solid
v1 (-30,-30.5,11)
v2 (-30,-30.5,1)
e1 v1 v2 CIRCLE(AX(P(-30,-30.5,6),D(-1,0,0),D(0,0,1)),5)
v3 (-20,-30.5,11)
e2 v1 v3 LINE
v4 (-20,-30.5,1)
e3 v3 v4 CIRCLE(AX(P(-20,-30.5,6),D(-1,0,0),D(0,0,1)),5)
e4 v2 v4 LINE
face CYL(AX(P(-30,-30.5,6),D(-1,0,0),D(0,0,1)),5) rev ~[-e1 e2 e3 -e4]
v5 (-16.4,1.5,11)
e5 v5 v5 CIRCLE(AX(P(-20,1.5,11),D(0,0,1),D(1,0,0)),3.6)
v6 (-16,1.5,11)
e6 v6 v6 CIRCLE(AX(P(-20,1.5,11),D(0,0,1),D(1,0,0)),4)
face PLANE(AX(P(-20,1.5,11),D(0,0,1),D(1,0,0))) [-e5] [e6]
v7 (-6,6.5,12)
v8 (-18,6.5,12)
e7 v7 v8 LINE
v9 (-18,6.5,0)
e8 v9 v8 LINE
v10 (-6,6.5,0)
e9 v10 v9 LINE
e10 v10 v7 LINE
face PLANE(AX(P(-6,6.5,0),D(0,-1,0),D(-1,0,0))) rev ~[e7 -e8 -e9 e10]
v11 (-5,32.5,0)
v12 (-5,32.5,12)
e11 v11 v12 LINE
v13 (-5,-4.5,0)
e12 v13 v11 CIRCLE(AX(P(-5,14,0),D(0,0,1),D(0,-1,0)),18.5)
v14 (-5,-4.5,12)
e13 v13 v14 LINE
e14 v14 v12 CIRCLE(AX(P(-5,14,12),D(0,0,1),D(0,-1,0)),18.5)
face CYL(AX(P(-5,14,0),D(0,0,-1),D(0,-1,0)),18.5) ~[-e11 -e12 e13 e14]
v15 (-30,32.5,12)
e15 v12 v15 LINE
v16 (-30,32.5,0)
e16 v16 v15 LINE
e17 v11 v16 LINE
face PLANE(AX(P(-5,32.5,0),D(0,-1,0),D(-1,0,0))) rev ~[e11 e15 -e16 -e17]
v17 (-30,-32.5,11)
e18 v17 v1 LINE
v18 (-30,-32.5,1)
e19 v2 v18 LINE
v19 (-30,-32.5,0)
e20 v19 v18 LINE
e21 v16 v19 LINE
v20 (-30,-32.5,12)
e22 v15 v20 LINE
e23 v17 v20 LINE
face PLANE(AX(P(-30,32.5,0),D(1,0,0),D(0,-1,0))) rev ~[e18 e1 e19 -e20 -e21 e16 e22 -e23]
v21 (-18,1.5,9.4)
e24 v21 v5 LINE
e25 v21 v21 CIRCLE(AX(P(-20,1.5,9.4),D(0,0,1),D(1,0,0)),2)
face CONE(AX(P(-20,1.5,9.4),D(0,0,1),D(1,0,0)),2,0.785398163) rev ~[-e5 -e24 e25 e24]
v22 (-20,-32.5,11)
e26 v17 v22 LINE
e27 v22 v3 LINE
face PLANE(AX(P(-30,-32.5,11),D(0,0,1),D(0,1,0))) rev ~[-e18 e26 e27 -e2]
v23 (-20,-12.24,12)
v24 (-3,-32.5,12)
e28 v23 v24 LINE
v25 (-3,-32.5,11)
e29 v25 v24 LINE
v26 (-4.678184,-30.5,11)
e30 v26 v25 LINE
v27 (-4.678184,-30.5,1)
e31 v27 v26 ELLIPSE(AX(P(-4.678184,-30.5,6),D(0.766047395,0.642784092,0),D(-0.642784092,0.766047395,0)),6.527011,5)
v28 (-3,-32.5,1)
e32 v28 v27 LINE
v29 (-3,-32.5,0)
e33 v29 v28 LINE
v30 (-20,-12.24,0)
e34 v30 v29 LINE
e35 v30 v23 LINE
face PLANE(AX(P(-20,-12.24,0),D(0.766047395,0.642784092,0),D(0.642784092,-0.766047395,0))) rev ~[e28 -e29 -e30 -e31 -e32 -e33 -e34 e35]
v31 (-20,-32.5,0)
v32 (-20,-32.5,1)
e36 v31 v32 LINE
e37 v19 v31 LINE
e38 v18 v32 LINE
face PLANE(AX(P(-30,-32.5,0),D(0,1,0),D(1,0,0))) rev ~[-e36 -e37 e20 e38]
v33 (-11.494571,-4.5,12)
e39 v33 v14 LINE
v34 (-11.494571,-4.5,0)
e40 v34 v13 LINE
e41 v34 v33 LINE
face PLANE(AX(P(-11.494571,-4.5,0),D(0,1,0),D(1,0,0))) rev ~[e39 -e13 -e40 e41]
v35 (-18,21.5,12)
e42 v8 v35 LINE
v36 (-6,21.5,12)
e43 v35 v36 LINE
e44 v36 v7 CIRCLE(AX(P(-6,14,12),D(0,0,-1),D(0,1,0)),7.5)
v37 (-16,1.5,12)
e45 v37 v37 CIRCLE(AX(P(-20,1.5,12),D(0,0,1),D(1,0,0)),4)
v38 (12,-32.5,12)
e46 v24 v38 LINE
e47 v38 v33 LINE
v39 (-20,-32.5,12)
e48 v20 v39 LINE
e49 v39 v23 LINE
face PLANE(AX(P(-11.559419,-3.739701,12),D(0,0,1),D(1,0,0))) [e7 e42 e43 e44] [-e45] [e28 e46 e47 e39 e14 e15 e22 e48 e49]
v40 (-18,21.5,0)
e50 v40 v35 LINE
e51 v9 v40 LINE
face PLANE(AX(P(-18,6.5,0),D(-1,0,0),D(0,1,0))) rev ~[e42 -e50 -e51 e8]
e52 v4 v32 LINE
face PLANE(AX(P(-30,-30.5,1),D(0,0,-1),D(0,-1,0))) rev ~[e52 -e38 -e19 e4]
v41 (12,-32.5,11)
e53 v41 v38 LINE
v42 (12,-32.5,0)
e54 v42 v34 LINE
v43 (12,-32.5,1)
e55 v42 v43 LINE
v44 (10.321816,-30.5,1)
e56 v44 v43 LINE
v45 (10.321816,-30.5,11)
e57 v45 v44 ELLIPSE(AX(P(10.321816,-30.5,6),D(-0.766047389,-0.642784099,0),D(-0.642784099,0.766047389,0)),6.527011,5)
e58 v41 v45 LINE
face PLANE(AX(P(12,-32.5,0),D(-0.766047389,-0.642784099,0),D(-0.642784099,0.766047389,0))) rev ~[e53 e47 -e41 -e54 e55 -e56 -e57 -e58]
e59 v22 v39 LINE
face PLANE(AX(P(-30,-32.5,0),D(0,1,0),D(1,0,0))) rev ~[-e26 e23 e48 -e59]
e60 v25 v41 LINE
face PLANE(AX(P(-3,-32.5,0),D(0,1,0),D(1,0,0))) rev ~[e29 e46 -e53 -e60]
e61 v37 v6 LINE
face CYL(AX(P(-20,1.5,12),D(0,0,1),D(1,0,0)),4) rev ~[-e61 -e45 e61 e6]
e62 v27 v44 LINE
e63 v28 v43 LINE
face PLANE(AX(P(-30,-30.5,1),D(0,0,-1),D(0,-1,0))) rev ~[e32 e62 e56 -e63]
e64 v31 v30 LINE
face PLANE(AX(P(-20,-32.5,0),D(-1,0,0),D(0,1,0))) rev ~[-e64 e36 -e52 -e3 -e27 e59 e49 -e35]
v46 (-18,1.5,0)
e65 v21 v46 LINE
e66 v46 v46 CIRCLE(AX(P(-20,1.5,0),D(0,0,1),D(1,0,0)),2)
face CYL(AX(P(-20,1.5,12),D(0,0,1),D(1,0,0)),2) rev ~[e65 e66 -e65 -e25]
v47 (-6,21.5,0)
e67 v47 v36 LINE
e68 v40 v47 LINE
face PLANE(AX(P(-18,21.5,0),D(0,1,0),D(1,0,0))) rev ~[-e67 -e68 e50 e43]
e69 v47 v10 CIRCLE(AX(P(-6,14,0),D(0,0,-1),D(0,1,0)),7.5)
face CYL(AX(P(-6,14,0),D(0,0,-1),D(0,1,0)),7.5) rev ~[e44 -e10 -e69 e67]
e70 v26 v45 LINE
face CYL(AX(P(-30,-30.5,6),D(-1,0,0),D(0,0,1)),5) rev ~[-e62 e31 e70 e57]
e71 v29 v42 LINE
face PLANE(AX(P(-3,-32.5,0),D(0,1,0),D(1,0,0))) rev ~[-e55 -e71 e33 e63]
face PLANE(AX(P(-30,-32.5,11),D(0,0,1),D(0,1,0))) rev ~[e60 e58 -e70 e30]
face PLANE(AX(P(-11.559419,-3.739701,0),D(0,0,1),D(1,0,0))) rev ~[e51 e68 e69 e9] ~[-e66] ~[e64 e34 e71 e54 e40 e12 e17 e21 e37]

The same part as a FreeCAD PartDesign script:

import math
import FreeCAD as App
import Part
import Sketcher


def edges_at(feature, points):
    """Names of the edges that pass closest to the given points."""
    edges = feature.Shape.Edges
    near = lambda p: min(range(len(edges)), key=lambda i: edges[i].distToShape(Part.Vertex(*p))[0])
    return sorted({f"Edge{near(p) + 1}" for p in points})

doc = App.newDocument("Part")
body = doc.addObject("PartDesign::Body", "Body")

# Sketch on XY plane
sketch1 = doc.addObject("Sketcher::SketchObject", "Sketch")
body.addObject(sketch1)
sketch1.AttachmentSupport = (doc.XY_Plane, [""])
sketch1.MapMode = "FlatFace"
sketch1.addGeometry(Part.LineSegment(App.Vector(-5, 32, 0), App.Vector(-30, 32, 0)), False)
sketch1.addGeometry(Part.LineSegment(App.Vector(-30, 32, 0), App.Vector(-30, -32, 0)), False)
sketch1.addGeometry(Part.LineSegment(App.Vector(-30, -32, 0), App.Vector(-20, -32, 0)), False)
sketch1.addGeometry(Part.LineSegment(App.Vector(-20, -32, 0), App.Vector(-20, -12, 0)), False)
sketch1.addGeometry(Part.LineSegment(App.Vector(-20, -12, 0), App.Vector(-3, -32, 0)), False)
sketch1.addGeometry(Part.LineSegment(App.Vector(-3, -32, 0), App.Vector(12, -32, 0)), False)
sketch1.addGeometry(Part.LineSegment(App.Vector(12, -32, 0), App.Vector(-11, -4, 0)), False)
sketch1.addGeometry(Part.LineSegment(App.Vector(-11, -4, 0), App.Vector(-5, -4, 0)), False)
sketch1.addGeometry(Part.ArcOfCircle(Part.Circle(App.Vector(-5, 14, 0), App.Vector(0, 0, 1), 18), math.radians(-90), math.radians(90)), False)
sketch1.addGeometry(Part.LineSegment(App.Vector(-6, 6, 0), App.Vector(-18, 6, 0)), False)
sketch1.addGeometry(Part.LineSegment(App.Vector(-18, 6, 0), App.Vector(-18, 22, 0)), False)
sketch1.addGeometry(Part.LineSegment(App.Vector(-18, 22, 0), App.Vector(-6, 22, 0)), False)
sketch1.addGeometry(Part.ArcOfCircle(Part.Circle(App.Vector(-6, 14, 0), App.Vector(0, 0, 1), 8), math.radians(-90), math.radians(90)), False)
sketch1.addConstraint(Sketcher.Constraint("Coincident", 0, 2, 1, 1))
sketch1.addConstraint(Sketcher.Constraint("Coincident", 1, 2, 2, 1))
sketch1.addConstraint(Sketcher.Constraint("Coincident", 2, 2, 3, 1))
sketch1.addConstraint(Sketcher.Constraint("Coincident", 3, 2, 4, 1))
sketch1.addConstraint(Sketcher.Constraint("Coincident", 4, 2, 5, 1))
sketch1.addConstraint(Sketcher.Constraint("Coincident", 5, 2, 6, 1))
sketch1.addConstraint(Sketcher.Constraint("Coincident", 6, 2, 7, 1))
sketch1.addConstraint(Sketcher.Constraint("Tangent", 7, 2, 8, 1))
sketch1.addConstraint(Sketcher.Constraint("Tangent", 8, 2, 0, 1))
sketch1.addConstraint(Sketcher.Constraint("Coincident", 9, 2, 10, 1))
sketch1.addConstraint(Sketcher.Constraint("Coincident", 10, 2, 11, 1))
sketch1.addConstraint(Sketcher.Constraint("Tangent", 11, 2, 12, 2))
sketch1.addConstraint(Sketcher.Constraint("Tangent", 12, 1, 9, 1))
sketch1.addConstraint(Sketcher.Constraint("Horizontal", 0))
sketch1.addConstraint(Sketcher.Constraint("Vertical", 1))
sketch1.addConstraint(Sketcher.Constraint("Horizontal", 2))
sketch1.addConstraint(Sketcher.Constraint("Vertical", 3))
sketch1.addConstraint(Sketcher.Constraint("Horizontal", 5))
sketch1.addConstraint(Sketcher.Constraint("Horizontal", 7))
sketch1.addConstraint(Sketcher.Constraint("Horizontal", 9))
sketch1.addConstraint(Sketcher.Constraint("Vertical", 10))
sketch1.addConstraint(Sketcher.Constraint("Horizontal", 11))
sketch1.addConstraint(Sketcher.Constraint("Parallel", 4, 6))
sketch1.addConstraint(Sketcher.Constraint("Horizontal", 8, 3, 12, 3))
sketch1.addConstraint(Sketcher.Constraint("Horizontal", 2, 2, 4, 2))
sketch1.addConstraint(Sketcher.Constraint("Equal", 5, 10))
sketch1.addConstraint(Sketcher.Constraint("Radius", 8, 18.5))
sketch1.addConstraint(Sketcher.Constraint("Radius", 12, 7.5))
sketch1.addConstraint(Sketcher.Constraint("DistanceX", 0, 2, 0, 1, 25.0))
sketch1.addConstraint(Sketcher.Constraint("DistanceX", 2, 1, 2, 2, 10.0))
sketch1.addConstraint(Sketcher.Constraint("DistanceX", 9, 2, 9, 1, 12.0))
sketch1.addConstraint(Sketcher.Constraint("DistanceY", 1, 2, 1, 1, 65.0))
sketch1.addConstraint(Sketcher.Constraint("DistanceX", 8, 3, -1, 1, 5.0))
sketch1.addConstraint(Sketcher.Constraint("DistanceY", -1, 1, 8, 3, 14.0))
sketch1.addConstraint(Sketcher.Constraint("DistanceX", 12, 3, -1, 1, 6.0))
sketch1.addConstraint(Sketcher.Constraint("DistanceX", 4, 2, -1, 1, 3.0))
sketch1.addConstraint(Sketcher.Constraint("DistanceY", 3, 1, 3, 2, 20.26))
pad1 = doc.addObject("PartDesign::Pad", "Pad")
body.addObject(pad1)
pad1.Profile = sketch1
pad1.Length = 12

# Sketch on YZ plane
sketch2 = doc.addObject("Sketcher::SketchObject", "Sketch001")
body.addObject(sketch2)
sketch2.AttachmentSupport = (doc.YZ_Plane, [""])
sketch2.MapMode = "FlatFace"
sketch2.AttachmentOffset = App.Placement(App.Vector(0, 0, -30), App.Rotation())
sketch2.addGeometry(Part.LineSegment(App.Vector(-32.5, 11, 0), App.Vector(-30.5, 11, 0)), False)
sketch2.addGeometry(Part.ArcOfCircle(Part.Circle(App.Vector(-30.5, 6, 0), App.Vector(0, 0, 1), 5), math.radians(-90), math.radians(90)), False)
sketch2.addGeometry(Part.LineSegment(App.Vector(-30.5, 1, 0), App.Vector(-32.5, 1, 0)), False)
sketch2.addGeometry(Part.LineSegment(App.Vector(-32.5, 1, 0), App.Vector(-32.5, 11, 0)), False)
sketch2.addConstraint(Sketcher.Constraint("Tangent", 0, 2, 1, 2))
sketch2.addConstraint(Sketcher.Constraint("Tangent", 1, 1, 2, 1))
sketch2.addConstraint(Sketcher.Constraint("Coincident", 2, 2, 3, 1))
sketch2.addConstraint(Sketcher.Constraint("Coincident", 3, 2, 0, 1))
sketch2.addConstraint(Sketcher.Constraint("Horizontal", 0))
sketch2.addConstraint(Sketcher.Constraint("Horizontal", 2))
sketch2.addConstraint(Sketcher.Constraint("Vertical", 3))
sketch2.addConstraint(Sketcher.Constraint("Radius", 1, 5.0))
sketch2.addConstraint(Sketcher.Constraint("DistanceX", 0, 1, 0, 2, 2.0))
sketch2.addConstraint(Sketcher.Constraint("DistanceY", -1, 1, 1, 3, 6.0))
sketch2.addConstraint(Sketcher.Constraint("DistanceX", 1, 3, -1, 1, 30.5))
pocket1 = doc.addObject("PartDesign::Pocket", "Pocket")
body.addObject(pocket1)
pocket1.Profile = sketch2
pocket1.Type = "ThroughAll"
pocket1.Reversed = True

# Sketch on XY plane
sketch3 = doc.addObject("Sketcher::SketchObject", "Sketch002")
body.addObject(sketch3)
sketch3.AttachmentSupport = (doc.XY_Plane, [""])
sketch3.MapMode = "FlatFace"
sketch3.AttachmentOffset = App.Placement(App.Vector(0, 0, 12), App.Rotation())
sketch3.addGeometry(Part.Circle(App.Vector(-20, 1.5, 0), App.Vector(0, 0, 1), 2), False)
sketch3.addConstraint(Sketcher.Constraint("Diameter", 0, 4.0))
sketch3.addConstraint(Sketcher.Constraint("DistanceX", 0, 3, -1, 1, 20.0))
sketch3.addConstraint(Sketcher.Constraint("DistanceY", -1, 1, 0, 3, 1.5))
pocket2 = doc.addObject("PartDesign::Pocket", "Pocket001")
body.addObject(pocket2)
pocket2.Profile = sketch3
pocket2.Type = "ThroughAll"

# Sketch on XY plane
sketch4 = doc.addObject("Sketcher::SketchObject", "Sketch003")
body.addObject(sketch4)
sketch4.AttachmentSupport = (doc.XY_Plane, [""])
sketch4.MapMode = "FlatFace"
sketch4.AttachmentOffset = App.Placement(App.Vector(0, 0, 12), App.Rotation())
sketch4.addGeometry(Part.Circle(App.Vector(-20, 1.5, 0), App.Vector(0, 0, 1), 4), False)
sketch4.addConstraint(Sketcher.Constraint("Diameter", 0, 8.0))
sketch4.addConstraint(Sketcher.Constraint("DistanceX", 0, 3, -1, 1, 20.0))
sketch4.addConstraint(Sketcher.Constraint("DistanceY", -1, 1, 0, 3, 1.5))
pocket3 = doc.addObject("PartDesign::Pocket", "Pocket002")
body.addObject(pocket3)
pocket3.Profile = sketch4
pocket3.Length = 1
doc.recompute()

chamfer = doc.addObject("PartDesign::Chamfer", "Chamfer")
body.addObject(chamfer)
chamfer.Base = (pocket3, edges_at(pocket3, [(-22, 1.5, 11)]))
chamfer.Size = 1.6

doc.recompute()
